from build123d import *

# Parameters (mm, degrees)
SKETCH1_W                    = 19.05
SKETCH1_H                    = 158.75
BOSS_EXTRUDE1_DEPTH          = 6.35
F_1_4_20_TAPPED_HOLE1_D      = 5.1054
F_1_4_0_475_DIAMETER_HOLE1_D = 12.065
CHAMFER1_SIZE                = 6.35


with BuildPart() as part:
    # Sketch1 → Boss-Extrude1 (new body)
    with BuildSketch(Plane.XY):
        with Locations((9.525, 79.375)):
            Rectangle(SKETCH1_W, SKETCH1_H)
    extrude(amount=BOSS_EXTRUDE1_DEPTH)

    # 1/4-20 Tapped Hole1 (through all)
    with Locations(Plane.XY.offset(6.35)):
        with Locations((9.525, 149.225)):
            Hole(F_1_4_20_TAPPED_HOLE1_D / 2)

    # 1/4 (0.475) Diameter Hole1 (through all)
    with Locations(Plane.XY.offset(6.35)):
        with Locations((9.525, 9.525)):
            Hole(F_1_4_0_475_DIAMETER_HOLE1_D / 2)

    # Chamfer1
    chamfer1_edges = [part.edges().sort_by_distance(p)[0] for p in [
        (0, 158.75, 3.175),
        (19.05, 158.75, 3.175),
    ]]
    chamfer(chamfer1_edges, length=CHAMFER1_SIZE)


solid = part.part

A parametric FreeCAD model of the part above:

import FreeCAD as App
import Part
import Sketcher
Q = App.Units.Quantity


def edges_at(feature, points):
    """Names of the edges that pass closest to the given points."""
    edges = feature.Shape.Edges
    near = lambda p: min(range(len(edges)), key=lambda i: edges[i].distToShape(Part.Vertex(*p))[0])
    return sorted({f"Edge{near(p) + 1}" for p in points})

doc = App.newDocument("Part")
body = doc.addObject("PartDesign::Body", "Body")

sketch1 = body.newObject("Sketcher::SketchObject", "Sketch")
sketch1.AttachmentSupport = (doc.getObject("XY_Plane"), [""])
sketch1.MapMode = "FlatFace"
sketch1.addGeometry(Part.LineSegment(App.Vector(0, 159, 0), App.Vector(0, 0, 0)), False)
sketch1.addGeometry(Part.LineSegment(App.Vector(0, 0, 0), App.Vector(19, 0, 0)), False)
sketch1.addGeometry(Part.LineSegment(App.Vector(19, 0, 0), App.Vector(19, 159, 0)), False)
sketch1.addGeometry(Part.LineSegment(App.Vector(19, 159, 0), App.Vector(0, 159, 0)), False)
sketch1.addConstraint(Sketcher.Constraint("Coincident", 0, 2, 1, 1))
sketch1.addConstraint(Sketcher.Constraint("Coincident", 1, 2, 2, 1))
sketch1.addConstraint(Sketcher.Constraint("Coincident", 2, 2, 3, 1))
sketch1.addConstraint(Sketcher.Constraint("Coincident", 3, 2, 0, 1))
sketch1.addConstraint(Sketcher.Constraint("Vertical", 0))
sketch1.addConstraint(Sketcher.Constraint("Horizontal", 1))
sketch1.addConstraint(Sketcher.Constraint("Vertical", 2))
sketch1.addConstraint(Sketcher.Constraint("Horizontal", 3))
sketch1.addConstraint(Sketcher.Constraint("Coincident", 0, 2, -1, 1))
sketch1.addConstraint(Sketcher.Constraint("DistanceX", 1, 1, 1, 2, Q("0.75 in")))
sketch1.addConstraint(Sketcher.Constraint("DistanceY", 0, 2, 0, 1, Q("6.25 in")))
pad1 = body.newObject("PartDesign::Pad", "Pad")
pad1.Profile = sketch1
pad1.Length = Q("0.25 in")

sketch2 = body.newObject("Sketcher::SketchObject", "Sketch001")
sketch2.AttachmentSupport = (doc.getObject("XY_Plane"), [""])
sketch2.MapMode = "FlatFace"
sketch2.AttachmentOffset = App.Placement(App.Vector(0, 0, 0.25 * 25.4), App.Rotation())
sketch2.addGeometry(Part.Circle(App.Vector(9.5, 149.2, 0), App.Vector(0, 0, 1), 2.6), False)
sketch2.addConstraint(Sketcher.Constraint("Diameter", 0, Q("0.201 in")))
sketch2.addConstraint(Sketcher.Constraint("DistanceX", -1, 1, 0, 3, Q("0.375 in")))
sketch2.addConstraint(Sketcher.Constraint("DistanceY", -1, 1, 0, 3, Q("5.875 in")))
doc.recompute()
hole = body.newObject("PartDesign::Hole", "Hole")
hole.Profile = sketch2
hole.ThreadType = "None"
hole.Diameter = Q("0.201 in")
hole.DepthType = "ThroughAll"

sketch3 = body.newObject("Sketcher::SketchObject", "Sketch002")
sketch3.AttachmentSupport = (doc.getObject("XY_Plane"), [""])
sketch3.MapMode = "FlatFace"
sketch3.AttachmentOffset = App.Placement(App.Vector(0, 0, 0.25 * 25.4), App.Rotation())
sketch3.addGeometry(Part.Circle(App.Vector(10, 10, 0), App.Vector(0, 0, 1), 6), False)
sketch3.addConstraint(Sketcher.Constraint("Diameter", 0, Q("0.475 in")))
sketch3.addConstraint(Sketcher.Constraint("DistanceX", -1, 1, 0, 3, Q("0.375 in")))
sketch3.addConstraint(Sketcher.Constraint("DistanceY", -1, 1, 0, 3, Q("0.375 in")))
doc.recompute()
hole2 = body.newObject("PartDesign::Hole", "Hole001")
hole2.Profile = sketch3
hole2.ThreadType = "None"
hole2.Diameter = Q("0.475 in")
hole2.DepthType = "ThroughAll"
doc.recompute()

chamfer = body.newObject("PartDesign::Chamfer", "Chamfer")
chamfer.Base = (hole2, edges_at(hole2, [(0, 158.75, 3.175), (19.05, 158.75, 3.175)]))
chamfer.Size = Q("0.25 in")

doc.recompute()
